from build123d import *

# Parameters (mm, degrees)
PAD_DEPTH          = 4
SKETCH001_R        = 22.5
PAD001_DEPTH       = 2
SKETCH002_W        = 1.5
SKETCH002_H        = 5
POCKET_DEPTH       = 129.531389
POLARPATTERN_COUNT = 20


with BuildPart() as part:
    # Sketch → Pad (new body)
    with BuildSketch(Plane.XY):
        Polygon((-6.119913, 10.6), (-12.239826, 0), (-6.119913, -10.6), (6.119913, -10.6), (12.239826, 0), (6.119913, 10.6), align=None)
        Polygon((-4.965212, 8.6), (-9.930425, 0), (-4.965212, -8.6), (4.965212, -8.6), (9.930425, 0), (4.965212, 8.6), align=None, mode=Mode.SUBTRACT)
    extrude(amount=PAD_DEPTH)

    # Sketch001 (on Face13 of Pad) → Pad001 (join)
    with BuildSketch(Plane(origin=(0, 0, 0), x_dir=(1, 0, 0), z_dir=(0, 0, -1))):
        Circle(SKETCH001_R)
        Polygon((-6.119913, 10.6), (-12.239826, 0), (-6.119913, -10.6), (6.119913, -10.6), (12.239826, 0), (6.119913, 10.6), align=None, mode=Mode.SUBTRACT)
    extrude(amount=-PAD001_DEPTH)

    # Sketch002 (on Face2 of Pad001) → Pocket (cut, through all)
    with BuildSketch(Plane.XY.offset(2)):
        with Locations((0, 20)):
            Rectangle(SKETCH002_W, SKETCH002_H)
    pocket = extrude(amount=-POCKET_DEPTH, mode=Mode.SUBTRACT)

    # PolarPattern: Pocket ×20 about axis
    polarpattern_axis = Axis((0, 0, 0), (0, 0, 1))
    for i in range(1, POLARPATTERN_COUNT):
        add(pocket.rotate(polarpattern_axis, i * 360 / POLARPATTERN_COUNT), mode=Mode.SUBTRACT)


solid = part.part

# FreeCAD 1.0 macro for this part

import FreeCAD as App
import Part
import Sketcher
from FreeCAD import Vector
Q = App.Units.Quantity


def add_polygon(sketch, points):
    """Adds a closed chain of lines whose ends are joined by coincident constraints."""
    first, n = sketch.GeometryCount, len(points)
    for a, b in zip(points, points[1:] + points[:1]):
        sketch.addGeometry(Part.LineSegment(App.Vector(*a, 0), App.Vector(*b, 0)), False)
    for i in range(n):
        sketch.addConstraint(Sketcher.Constraint("Coincident", first + i, 2, first + (i + 1) % n, 1))

doc = App.newDocument("Part")
params = doc.addObject("Spreadsheet::Sheet", "Params")
for row, (alias, value) in enumerate([
    ("pad1_length", "4 mm"),
    ("sketch2_diameter", "45 mm"),
    ("pad2_length", "2 mm"),
    ("sketch3_height", "5 mm"),
    ("sketch3_width", "1.5 mm"),
], start=1):
    params.set(f"A{row}", alias)
    params.set(f"B{row}", "=" + value)
    params.setAlias(f"B{row}", alias)

body = doc.addObject("PartDesign::Body", "Body")

# Sketch on XY plane
sketch1 = body.newObject("Sketcher::SketchObject", "Sketch")
sketch1.AttachmentSupport = (doc.getObject("XY_Plane"), [""])
sketch1.MapMode = "FlatFace"
add_polygon(sketch1, [(-6, 11), (-12, 0), (-6, -11), (6, -11), (12, 0), (6, 11)])  # lines 0-5
add_polygon(sketch1, [(-10, 0), (-5, 9), (5, 9), (10, 0), (5, -9), (-5, -9)])  # lines 6-11
sketch1.addConstraint([
    Sketcher.Constraint("Horizontal", 2),
    Sketcher.Constraint("Horizontal", 5),
    Sketcher.Constraint("Horizontal", 7),
    Sketcher.Constraint("Horizontal", 10),
    Sketcher.Constraint("Symmetric", 0, 2, 3, 2, -1, 1),
    Sketcher.Constraint("Symmetric", 1, 2, 4, 2, -1, 1),
    Sketcher.Constraint("Symmetric", 6, 2, 9, 2, -1, 1),
    Sketcher.Constraint("Symmetric", 8, 2, 11, 2, -1, 1),
    Sketcher.Constraint("PointOnObject", 0, 2, -1),
    Sketcher.Constraint("PointOnObject", 8, 2, -1),
    Sketcher.Constraint("Parallel", 0, 3),
    Sketcher.Constraint("Parallel", 3, 6),
    Sketcher.Constraint("Parallel", 4, 8),
    Sketcher.Constraint("Parallel", 8, 11),
    Sketcher.Constraint("Vertical", 2, 2, 4, 2),
    Sketcher.Constraint("Angle", 0, Q("-120.000001 deg")),
    Sketcher.Constraint("DistanceY", 6, 2, 5, 2, Q("2 mm")),
    Sketcher.Constraint("DistanceY", 1, 2, -1, 1, Q("10.6 mm")),
    Sketcher.Constraint("DistanceX", 5, 2, 6, 2, Q("1.154701 mm")),
    Sketcher.Constraint("DistanceX", 2, 1, 2, 2, Q("12.239826 mm")),
])
pad1 = body.newObject("PartDesign::Pad", "Pad")
pad1.Profile = sketch1
pad1.setExpression("Length", "Params.pad1_length")

# Sketch on XY plane
sketch2 = body.newObject("Sketcher::SketchObject", "Sketch001")
sketch2.AttachmentSupport = (doc.getObject("XY_Plane"), [""])
sketch2.MapMode = "FlatFace"
sketch2.addGeometry(Part.Circle(Vector(0, 0, 0), Vector(0, 0, 1), 22), False)  # 0
add_polygon(sketch2, [(-12, 0), (-6, -11), (6, -11), (12, 0), (6, 11), (-6, 11)])  # lines 1-6
sketch2.addConstraint([
    Sketcher.Constraint("Horizontal", 2),
    Sketcher.Constraint("Horizontal", 5),
    Sketcher.Constraint("Coincident", 0, 3, -1, 1),
    Sketcher.Constraint("Symmetric", 1, 2, 4, 2, -1, 1),
    Sketcher.Constraint("Symmetric", 3, 2, 6, 2, -1, 1),
    Sketcher.Constraint("PointOnObject", 3, 2, -1),
    Sketcher.Constraint("Parallel", 3, 6),
    Sketcher.Constraint("Vertical", 2, 2, 4, 2),
    Sketcher.Constraint("Diameter", 0, Q("45 mm")),
    Sketcher.Constraint("Angle", 1, Q("-59.999999 deg")),
    Sketcher.Constraint("DistanceY", 1, 2, -1, 1, Q("10.6 mm")),
    Sketcher.Constraint("DistanceX", 2, 1, 2, 2, Q("12.239826 mm")),
])
sketch2.setExpression("Constraints[14]", "Params.sketch2_diameter")
pad2 = body.newObject("PartDesign::Pad", "Pad001")
pad2.Profile = sketch2
pad2.setExpression("Length", "Params.pad2_length")

# Sketch on XY plane
sketch3 = body.newObject("Sketcher::SketchObject", "Sketch002")
sketch3.AttachmentSupport = (doc.getObject("XY_Plane"), [""])
sketch3.MapMode = "FlatFace"
sketch3.AttachmentOffset = App.Placement(Vector(0, 0, 2), App.Rotation())
add_polygon(sketch3, [(-0.8, 22.5), (-0.8, 17.5), (0.8, 17.5), (0.8, 22.5)])  # lines 0-3
sketch3.addConstraint([
    Sketcher.Constraint("Vertical", 0),
    Sketcher.Constraint("Horizontal", 1),
    Sketcher.Constraint("Vertical", 2),
    Sketcher.Constraint("Horizontal", 3),
    Sketcher.Constraint("DistanceY", 0, 2, 0, 1, Q("5 mm")),
    Sketcher.Constraint("DistanceX", 1, 1, 1, 2, Q("1.5 mm")),
    Sketcher.Constraint("DistanceY", -1, 1, 0, 2, Q("17.5 mm")),
    Sketcher.Constraint("DistanceX", 0, 2, -1, 1, Q("0.75 mm")),
])
sketch3.setExpression("Constraints[8]", "Params.sketch3_height")
sketch3.setExpression("Constraints[9]", "Params.sketch3_width")
pocket1 = body.newObject("PartDesign::Pocket", "Pocket")
pocket1.Profile = sketch3
pocket1.Type = "ThroughAll"
doc.recompute()

polarpattern = body.newObject("PartDesign::PolarPattern", "PolarPattern")
polarpattern.Originals = [pocket1]
polarpattern.Axis = (doc.getObject("Z_Axis"), [""])
polarpattern.Angle = 360
polarpattern.Occurrences = 20
body.Tip = polarpattern

doc.recompute()
